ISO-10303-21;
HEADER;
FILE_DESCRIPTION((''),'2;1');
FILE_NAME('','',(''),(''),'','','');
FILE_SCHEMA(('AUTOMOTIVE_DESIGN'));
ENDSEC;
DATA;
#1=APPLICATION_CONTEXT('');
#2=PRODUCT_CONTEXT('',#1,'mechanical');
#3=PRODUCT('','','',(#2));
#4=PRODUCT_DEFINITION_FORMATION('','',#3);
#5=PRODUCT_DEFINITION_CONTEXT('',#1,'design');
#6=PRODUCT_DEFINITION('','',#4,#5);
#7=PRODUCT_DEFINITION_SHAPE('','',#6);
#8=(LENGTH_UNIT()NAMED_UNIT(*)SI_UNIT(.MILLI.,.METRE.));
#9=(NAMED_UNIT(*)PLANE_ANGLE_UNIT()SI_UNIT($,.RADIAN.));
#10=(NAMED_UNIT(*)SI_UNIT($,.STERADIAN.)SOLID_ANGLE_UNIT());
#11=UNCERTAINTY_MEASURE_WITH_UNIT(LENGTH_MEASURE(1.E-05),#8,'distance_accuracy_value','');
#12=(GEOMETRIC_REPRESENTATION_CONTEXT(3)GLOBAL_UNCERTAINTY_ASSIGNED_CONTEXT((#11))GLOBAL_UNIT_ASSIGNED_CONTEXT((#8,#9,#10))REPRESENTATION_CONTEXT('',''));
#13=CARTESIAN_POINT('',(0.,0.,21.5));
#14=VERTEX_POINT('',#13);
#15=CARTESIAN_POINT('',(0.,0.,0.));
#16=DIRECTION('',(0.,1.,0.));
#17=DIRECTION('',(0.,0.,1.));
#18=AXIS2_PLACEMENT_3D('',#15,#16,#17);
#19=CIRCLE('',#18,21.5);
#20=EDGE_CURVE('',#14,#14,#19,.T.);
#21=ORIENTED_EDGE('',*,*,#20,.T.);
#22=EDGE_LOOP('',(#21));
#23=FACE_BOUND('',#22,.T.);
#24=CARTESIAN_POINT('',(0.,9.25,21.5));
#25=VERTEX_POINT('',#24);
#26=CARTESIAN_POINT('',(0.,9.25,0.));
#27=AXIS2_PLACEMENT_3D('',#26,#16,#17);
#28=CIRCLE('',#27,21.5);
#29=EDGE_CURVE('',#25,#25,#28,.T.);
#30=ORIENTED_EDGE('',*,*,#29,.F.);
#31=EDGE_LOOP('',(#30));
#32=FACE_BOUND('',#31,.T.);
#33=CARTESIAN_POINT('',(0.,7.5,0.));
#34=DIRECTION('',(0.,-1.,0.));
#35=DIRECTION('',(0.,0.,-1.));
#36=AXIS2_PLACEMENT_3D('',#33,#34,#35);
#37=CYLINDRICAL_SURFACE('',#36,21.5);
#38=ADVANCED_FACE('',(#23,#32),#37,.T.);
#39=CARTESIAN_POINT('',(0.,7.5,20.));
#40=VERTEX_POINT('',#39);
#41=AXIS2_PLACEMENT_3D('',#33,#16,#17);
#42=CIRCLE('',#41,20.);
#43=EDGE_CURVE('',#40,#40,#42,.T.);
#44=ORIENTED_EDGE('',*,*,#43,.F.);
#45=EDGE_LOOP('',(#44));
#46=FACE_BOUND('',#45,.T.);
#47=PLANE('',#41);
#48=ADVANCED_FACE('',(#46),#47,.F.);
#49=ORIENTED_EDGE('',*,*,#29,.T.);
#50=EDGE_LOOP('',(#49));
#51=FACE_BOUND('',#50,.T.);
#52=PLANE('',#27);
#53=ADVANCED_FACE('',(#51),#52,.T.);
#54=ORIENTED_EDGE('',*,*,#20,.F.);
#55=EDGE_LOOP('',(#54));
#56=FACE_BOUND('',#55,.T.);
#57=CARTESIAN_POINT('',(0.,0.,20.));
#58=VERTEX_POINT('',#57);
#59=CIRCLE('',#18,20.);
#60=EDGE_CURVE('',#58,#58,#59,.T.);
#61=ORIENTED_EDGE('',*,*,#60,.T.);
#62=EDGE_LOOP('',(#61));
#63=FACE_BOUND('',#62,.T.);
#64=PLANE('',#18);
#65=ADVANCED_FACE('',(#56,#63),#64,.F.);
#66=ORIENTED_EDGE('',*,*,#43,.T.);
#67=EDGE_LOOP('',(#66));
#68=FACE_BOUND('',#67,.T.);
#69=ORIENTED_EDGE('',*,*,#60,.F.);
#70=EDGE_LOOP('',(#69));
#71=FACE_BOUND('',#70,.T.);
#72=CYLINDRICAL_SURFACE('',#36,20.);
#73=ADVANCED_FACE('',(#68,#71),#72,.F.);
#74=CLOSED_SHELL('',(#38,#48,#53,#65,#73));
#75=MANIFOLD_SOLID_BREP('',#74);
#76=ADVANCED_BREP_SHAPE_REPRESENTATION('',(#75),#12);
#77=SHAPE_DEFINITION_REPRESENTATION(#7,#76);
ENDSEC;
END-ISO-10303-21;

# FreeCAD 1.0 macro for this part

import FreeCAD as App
import Part
import Sketcher

V = App.Vector
Q = App.Units.Quantity

doc = App.newDocument("Part")
params = doc.addObject("Spreadsheet::Sheet", "Params")
for row, (alias, value) in enumerate([
    ("sketch1_diameter", "43 mm"),
    ("sketch1_diameter2", "40 mm"),
    ("pad1_length", "7.5 mm"),
    ("sketch2_diameter", "43 mm"),
    ("pad2_length", "1.75 mm"),
], start=1):
    params.set(f"A{row}", alias)
    params.set(f"B{row}", "=" + value)
    params.setAlias(f"B{row}", alias)

body = doc.addObject("PartDesign::Body", "Body")

# Sketch on XZ plane
sketch1 = doc.addObject("Sketcher::SketchObject", "Sketch")
body.addObject(sketch1)
sketch1.AttachmentSupport = (doc.XZ_Plane, [""])
sketch1.MapMode = "FlatFace"
sketch1.addGeometry(Part.Circle(V(0, 0, 0), V(0, 0, 1), 22), False)
sketch1.addGeometry(Part.Circle(V(0, 0, 0), V(0, 0, 1), 20), False)
sketch1.addConstraint(Sketcher.Constraint("Coincident", 0, 3, -1, 1))
sketch1.addConstraint(Sketcher.Constraint("Coincident", 1, 3, -1, 1))
sketch1.addConstraint(Sketcher.Constraint("Diameter", 0, Q("43 mm")))
sketch1.addConstraint(Sketcher.Constraint("Diameter", 1, Q("40 mm")))
sketch1.setExpression("Constraints[2]", "Params.sketch1_diameter")
sketch1.setExpression("Constraints[3]", "Params.sketch1_diameter2")
pad1 = doc.addObject("PartDesign::Pad", "Pad")
body.addObject(pad1)
pad1.Profile = sketch1
pad1.setExpression("Length", "Params.pad1_length")
pad1.Reversed = True

# Sketch on XZ plane
sketch2 = doc.addObject("Sketcher::SketchObject", "Sketch001")
body.addObject(sketch2)
sketch2.AttachmentSupport = (doc.XZ_Plane, [""])
sketch2.MapMode = "FlatFace"
sketch2.AttachmentOffset = App.Placement(V(0, 0, -7.5), App.Rotation())
sketch2.addGeometry(Part.Circle(V(0, 0, 0), V(0, 0, 1), 22), False)
sketch2.addConstraint(Sketcher.Constraint("Coincident", 0, 3, -1, 1))
sketch2.addConstraint(Sketcher.Constraint("Diameter", 0, Q("43 mm")))
sketch2.setExpression("Constraints[1]", "Params.sketch2_diameter")
pad2 = doc.addObject("PartDesign::Pad", "Pad001")
body.addObject(pad2)
pad2.Profile = sketch2
pad2.setExpression("Length", "Params.pad2_length")
pad2.Reversed = True

doc.recompute()
